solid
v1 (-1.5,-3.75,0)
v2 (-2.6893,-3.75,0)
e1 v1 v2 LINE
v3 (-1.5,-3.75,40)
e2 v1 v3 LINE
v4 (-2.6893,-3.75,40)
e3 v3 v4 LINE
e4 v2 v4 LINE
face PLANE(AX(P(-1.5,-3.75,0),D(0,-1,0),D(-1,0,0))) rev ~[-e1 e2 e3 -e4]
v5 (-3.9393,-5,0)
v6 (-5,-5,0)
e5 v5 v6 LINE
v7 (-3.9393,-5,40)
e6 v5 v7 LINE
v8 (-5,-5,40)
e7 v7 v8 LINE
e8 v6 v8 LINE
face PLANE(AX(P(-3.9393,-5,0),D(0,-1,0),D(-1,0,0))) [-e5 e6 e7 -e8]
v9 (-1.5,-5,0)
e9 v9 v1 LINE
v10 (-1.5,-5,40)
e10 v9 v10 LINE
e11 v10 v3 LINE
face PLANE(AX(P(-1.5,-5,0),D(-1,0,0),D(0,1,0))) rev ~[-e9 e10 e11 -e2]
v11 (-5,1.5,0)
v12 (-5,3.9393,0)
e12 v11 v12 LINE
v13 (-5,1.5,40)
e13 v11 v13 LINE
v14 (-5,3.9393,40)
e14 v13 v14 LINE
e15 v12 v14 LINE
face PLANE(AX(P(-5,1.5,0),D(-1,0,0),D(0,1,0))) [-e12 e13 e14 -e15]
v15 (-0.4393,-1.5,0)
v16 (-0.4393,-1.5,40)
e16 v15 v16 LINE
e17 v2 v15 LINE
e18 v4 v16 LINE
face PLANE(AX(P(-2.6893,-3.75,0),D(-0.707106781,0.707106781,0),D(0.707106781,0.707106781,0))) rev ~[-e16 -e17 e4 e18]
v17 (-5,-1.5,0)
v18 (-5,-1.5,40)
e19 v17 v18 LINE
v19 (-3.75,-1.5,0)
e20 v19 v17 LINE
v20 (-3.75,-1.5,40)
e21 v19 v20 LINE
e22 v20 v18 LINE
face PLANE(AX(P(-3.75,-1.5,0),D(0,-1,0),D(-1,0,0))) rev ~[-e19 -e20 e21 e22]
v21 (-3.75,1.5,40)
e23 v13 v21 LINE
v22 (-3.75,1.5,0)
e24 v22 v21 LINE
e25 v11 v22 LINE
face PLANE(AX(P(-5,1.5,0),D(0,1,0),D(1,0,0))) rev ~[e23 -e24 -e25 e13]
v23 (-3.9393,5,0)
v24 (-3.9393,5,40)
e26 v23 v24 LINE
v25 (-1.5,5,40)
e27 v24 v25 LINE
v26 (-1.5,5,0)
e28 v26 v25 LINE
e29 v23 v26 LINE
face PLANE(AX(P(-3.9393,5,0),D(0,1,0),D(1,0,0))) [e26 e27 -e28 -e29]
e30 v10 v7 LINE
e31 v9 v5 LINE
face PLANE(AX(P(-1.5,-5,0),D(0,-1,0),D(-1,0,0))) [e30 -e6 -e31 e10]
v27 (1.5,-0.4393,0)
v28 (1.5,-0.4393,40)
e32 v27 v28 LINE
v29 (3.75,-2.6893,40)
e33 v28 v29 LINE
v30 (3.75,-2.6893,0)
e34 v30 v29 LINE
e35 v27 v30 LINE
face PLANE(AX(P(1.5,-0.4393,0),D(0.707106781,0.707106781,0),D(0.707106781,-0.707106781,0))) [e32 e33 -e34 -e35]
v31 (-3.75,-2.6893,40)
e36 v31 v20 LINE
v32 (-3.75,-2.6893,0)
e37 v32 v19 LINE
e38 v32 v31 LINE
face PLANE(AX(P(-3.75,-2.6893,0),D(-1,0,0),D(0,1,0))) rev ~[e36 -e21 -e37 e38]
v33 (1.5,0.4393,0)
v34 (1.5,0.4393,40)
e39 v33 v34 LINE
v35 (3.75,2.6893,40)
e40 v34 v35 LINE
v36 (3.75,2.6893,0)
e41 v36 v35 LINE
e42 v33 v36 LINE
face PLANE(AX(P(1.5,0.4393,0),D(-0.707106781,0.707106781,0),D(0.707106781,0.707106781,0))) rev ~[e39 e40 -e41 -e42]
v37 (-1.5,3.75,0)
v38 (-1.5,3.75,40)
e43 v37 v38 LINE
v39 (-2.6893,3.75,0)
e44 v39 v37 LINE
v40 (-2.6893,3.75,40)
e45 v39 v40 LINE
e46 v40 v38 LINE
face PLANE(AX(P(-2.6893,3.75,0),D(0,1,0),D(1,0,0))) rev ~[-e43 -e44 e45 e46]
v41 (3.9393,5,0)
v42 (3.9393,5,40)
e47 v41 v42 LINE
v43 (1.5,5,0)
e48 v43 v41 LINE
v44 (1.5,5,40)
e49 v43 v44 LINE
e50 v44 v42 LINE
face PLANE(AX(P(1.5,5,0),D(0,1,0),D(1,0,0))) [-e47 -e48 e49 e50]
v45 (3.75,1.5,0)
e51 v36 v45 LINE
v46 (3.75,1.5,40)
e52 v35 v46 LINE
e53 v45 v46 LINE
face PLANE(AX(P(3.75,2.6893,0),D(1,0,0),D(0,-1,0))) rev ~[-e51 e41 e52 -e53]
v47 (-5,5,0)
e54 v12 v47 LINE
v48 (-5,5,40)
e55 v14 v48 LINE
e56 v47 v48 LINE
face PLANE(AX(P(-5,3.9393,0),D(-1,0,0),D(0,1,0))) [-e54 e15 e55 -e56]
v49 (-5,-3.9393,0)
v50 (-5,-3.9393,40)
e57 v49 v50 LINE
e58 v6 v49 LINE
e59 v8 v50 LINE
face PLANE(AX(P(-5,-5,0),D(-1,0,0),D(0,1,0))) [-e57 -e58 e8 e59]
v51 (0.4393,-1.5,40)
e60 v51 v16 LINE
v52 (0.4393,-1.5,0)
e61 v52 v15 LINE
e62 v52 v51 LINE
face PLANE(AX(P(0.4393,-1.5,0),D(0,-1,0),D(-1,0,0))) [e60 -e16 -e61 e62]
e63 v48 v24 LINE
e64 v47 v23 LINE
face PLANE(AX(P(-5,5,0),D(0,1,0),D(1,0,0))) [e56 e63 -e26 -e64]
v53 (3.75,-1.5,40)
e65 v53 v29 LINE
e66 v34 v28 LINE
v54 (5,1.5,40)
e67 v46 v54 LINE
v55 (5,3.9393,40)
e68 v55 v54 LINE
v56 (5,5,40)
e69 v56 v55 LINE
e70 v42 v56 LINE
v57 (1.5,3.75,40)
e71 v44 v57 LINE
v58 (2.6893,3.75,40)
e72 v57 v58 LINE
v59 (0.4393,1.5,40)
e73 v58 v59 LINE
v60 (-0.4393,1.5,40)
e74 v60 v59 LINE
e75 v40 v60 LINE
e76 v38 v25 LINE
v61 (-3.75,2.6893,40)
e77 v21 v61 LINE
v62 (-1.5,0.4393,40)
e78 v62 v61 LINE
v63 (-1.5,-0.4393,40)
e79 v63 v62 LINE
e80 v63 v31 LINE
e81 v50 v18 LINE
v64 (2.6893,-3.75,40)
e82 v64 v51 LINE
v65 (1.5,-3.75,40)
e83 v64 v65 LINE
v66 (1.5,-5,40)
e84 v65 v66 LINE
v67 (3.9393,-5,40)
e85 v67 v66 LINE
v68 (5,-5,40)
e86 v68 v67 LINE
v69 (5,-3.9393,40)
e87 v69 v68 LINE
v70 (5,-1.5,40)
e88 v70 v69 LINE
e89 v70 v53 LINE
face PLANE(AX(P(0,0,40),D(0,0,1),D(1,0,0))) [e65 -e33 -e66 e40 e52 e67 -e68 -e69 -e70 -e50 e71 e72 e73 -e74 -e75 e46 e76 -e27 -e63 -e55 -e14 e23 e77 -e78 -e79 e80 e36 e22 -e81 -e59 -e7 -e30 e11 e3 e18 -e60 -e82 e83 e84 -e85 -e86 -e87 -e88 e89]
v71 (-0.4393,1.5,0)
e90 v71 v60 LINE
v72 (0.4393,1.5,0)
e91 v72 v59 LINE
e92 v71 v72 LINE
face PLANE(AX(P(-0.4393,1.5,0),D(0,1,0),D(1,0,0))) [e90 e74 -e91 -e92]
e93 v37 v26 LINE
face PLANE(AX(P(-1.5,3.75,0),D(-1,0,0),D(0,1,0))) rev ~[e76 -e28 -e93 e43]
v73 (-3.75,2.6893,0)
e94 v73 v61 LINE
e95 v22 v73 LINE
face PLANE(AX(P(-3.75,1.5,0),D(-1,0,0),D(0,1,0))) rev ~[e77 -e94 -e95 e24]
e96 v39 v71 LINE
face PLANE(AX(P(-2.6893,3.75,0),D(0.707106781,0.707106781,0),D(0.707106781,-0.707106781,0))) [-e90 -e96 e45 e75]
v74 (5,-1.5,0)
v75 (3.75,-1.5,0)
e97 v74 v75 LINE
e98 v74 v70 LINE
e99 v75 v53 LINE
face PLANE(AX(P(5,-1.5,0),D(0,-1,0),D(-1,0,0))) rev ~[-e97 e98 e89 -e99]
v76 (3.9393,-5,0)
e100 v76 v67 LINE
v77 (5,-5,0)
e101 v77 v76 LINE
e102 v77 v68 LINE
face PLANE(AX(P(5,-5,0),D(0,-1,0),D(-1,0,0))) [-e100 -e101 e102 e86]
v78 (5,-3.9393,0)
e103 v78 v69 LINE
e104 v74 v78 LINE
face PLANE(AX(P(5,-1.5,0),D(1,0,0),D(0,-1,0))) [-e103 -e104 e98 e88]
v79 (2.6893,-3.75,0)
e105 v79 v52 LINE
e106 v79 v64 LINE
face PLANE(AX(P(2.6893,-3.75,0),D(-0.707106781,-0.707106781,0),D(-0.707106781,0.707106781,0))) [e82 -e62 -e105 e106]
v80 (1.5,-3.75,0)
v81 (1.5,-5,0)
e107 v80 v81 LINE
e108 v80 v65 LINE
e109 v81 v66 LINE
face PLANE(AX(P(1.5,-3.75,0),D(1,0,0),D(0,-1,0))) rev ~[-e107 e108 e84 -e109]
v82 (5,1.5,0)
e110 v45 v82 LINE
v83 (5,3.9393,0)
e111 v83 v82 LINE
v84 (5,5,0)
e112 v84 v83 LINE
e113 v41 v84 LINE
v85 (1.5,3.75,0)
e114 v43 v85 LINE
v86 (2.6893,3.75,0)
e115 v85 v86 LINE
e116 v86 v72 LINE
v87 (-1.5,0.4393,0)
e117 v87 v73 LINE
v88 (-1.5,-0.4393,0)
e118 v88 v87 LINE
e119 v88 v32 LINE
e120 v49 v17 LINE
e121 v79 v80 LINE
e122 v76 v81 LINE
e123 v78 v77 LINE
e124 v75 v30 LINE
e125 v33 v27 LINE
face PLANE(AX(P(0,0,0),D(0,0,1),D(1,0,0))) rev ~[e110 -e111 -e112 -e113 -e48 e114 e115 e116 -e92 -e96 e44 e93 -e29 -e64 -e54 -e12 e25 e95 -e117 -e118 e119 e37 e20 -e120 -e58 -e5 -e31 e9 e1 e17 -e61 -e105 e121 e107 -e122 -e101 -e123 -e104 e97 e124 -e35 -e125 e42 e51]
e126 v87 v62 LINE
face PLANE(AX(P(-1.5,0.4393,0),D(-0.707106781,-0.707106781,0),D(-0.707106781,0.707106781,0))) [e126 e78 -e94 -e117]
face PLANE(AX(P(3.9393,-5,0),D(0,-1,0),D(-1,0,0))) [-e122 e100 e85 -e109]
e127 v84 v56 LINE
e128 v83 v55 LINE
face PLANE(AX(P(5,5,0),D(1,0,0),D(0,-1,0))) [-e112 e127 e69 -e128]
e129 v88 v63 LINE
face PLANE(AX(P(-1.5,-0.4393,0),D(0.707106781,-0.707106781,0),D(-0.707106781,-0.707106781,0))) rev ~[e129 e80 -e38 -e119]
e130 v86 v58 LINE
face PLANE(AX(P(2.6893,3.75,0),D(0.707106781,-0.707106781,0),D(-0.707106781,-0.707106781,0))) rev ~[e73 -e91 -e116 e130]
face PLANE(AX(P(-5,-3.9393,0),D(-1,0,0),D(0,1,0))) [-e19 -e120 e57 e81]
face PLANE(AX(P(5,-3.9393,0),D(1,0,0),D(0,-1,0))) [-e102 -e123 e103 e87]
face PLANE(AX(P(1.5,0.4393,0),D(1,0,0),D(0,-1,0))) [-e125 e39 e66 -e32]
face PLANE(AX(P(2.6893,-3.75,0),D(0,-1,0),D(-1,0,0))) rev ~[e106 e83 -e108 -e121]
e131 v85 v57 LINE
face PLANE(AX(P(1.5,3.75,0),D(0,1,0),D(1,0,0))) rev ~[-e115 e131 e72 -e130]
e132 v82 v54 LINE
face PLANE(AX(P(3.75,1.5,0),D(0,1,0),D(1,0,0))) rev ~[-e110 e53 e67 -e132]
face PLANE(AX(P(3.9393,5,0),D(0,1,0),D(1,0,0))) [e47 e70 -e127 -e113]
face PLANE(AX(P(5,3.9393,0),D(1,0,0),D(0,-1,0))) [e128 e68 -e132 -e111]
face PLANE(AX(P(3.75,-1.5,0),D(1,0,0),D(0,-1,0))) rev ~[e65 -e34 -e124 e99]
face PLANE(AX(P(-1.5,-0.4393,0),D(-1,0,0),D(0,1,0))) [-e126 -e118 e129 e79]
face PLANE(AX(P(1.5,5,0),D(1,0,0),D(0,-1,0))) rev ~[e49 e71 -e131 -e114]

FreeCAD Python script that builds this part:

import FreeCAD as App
import Part
import Sketcher
from FreeCAD import Vector
Q = App.Units.Quantity

doc = App.newDocument("Part")
body = doc.addObject("PartDesign::Body", "Body")

# Sketch on XY plane
sketch1 = body.newObject("Sketcher::SketchObject", "Sketch")
sketch1.AttachmentSupport = (doc.getObject("XY_Plane"), [""])
sketch1.MapMode = "FlatFace"
sketch1.addGeometry([
    Part.LineSegment(Vector(-5, -1.5, 0), Vector(-5, -5, 0)),  # 0
    Part.LineSegment(Vector(-5, -5, 0), Vector(-1.5, -5, 0)),  # 1
    Part.LineSegment(Vector(-1.5, -5, 0), Vector(-1.5, -3.75, 0)),  # 2
    Part.LineSegment(Vector(-1.5, -3.75, 0), Vector(-2.6893, -3.75, 0)),  # 3
    Part.LineSegment(Vector(-2.6893, -3.75, 0), Vector(-0.4393, -1.5, 0)),  # 4
    Part.LineSegment(Vector(-0.4393, -1.5, 0), Vector(0.4393, -1.5, 0)),  # 5
    Part.LineSegment(Vector(0.4393, -1.5, 0), Vector(2.6893, -3.75, 0)),  # 6
    Part.LineSegment(Vector(2.6893, -3.75, 0), Vector(1.5, -3.75, 0)),  # 7
    Part.LineSegment(Vector(1.5, -3.75, 0), Vector(1.5, -5, 0)),  # 8
    Part.LineSegment(Vector(1.5, -5, 0), Vector(5, -5, 0)),  # 9
    Part.LineSegment(Vector(5, -5, 0), Vector(5, -1.5, 0)),  # 10
    Part.LineSegment(Vector(5, -1.5, 0), Vector(3.75, -1.5, 0)),  # 11
    Part.LineSegment(Vector(3.75, -1.5, 0), Vector(3.75, -2.6893, 0)),  # 12
    Part.LineSegment(Vector(3.75, -2.6893, 0), Vector(1.5, -0.4393, 0)),  # 13
    Part.LineSegment(Vector(1.5, -0.4393, 0), Vector(1.5, 0.4393, 0)),  # 14
    Part.LineSegment(Vector(1.5, 0.4393, 0), Vector(3.75, 2.6893, 0)),  # 15
    Part.LineSegment(Vector(3.75, 2.6893, 0), Vector(3.75, 1.5, 0)),  # 16
    Part.LineSegment(Vector(3.75, 1.5, 0), Vector(5, 1.5, 0)),  # 17
    Part.LineSegment(Vector(5, 1.5, 0), Vector(5, 5, 0)),  # 18
    Part.LineSegment(Vector(5, 5, 0), Vector(1.5, 5, 0)),  # 19
    Part.LineSegment(Vector(1.5, 5, 0), Vector(1.5, 3.75, 0)),  # 20
    Part.LineSegment(Vector(1.5, 3.75, 0), Vector(2.6893, 3.75, 0)),  # 21
    Part.LineSegment(Vector(2.6893, 3.75, 0), Vector(0.4393, 1.5, 0)),  # 22
    Part.LineSegment(Vector(0.4393, 1.5, 0), Vector(-0.4393, 1.5, 0)),  # 23
    Part.LineSegment(Vector(-0.4393, 1.5, 0), Vector(-2.6893, 3.75, 0)),  # 24
    Part.LineSegment(Vector(-2.6893, 3.75, 0), Vector(-1.5, 3.75, 0)),  # 25
    Part.LineSegment(Vector(-1.5, 3.75, 0), Vector(-1.5, 5, 0)),  # 26
    Part.LineSegment(Vector(-1.5, 5, 0), Vector(-5, 5, 0)),  # 27
    Part.LineSegment(Vector(-5, 5, 0), Vector(-5, 1.5, 0)),  # 28
    Part.LineSegment(Vector(-5, 1.5, 0), Vector(-3.75, 1.5, 0)),  # 29
    Part.LineSegment(Vector(-3.75, 1.5, 0), Vector(-3.75, 2.6893, 0)),  # 30
    Part.LineSegment(Vector(-3.75, 2.6893, 0), Vector(-1.5, 0.4393, 0)),  # 31
    Part.LineSegment(Vector(-1.5, 0.4393, 0), Vector(-1.5, -0.4393, 0)),  # 32
    Part.LineSegment(Vector(-1.5, -0.4393, 0), Vector(-3.75, -2.6893, 0)),  # 33
    Part.LineSegment(Vector(-3.75, -2.6893, 0), Vector(-3.75, -1.5, 0)),  # 34
    Part.LineSegment(Vector(-3.75, -1.5, 0), Vector(-5, -1.5, 0)),  # 35
], False)
sketch1.addConstraint([
    Sketcher.Constraint("Coincident", 0, 2, 1, 1),
    Sketcher.Constraint("Coincident", 1, 2, 2, 1),
    Sketcher.Constraint("Coincident", 2, 2, 3, 1),
    Sketcher.Constraint("Coincident", 3, 2, 4, 1),
    Sketcher.Constraint("Coincident", 4, 2, 5, 1),
    Sketcher.Constraint("Coincident", 5, 2, 6, 1),
    Sketcher.Constraint("Coincident", 6, 2, 7, 1),
    Sketcher.Constraint("Coincident", 7, 2, 8, 1),
    Sketcher.Constraint("Coincident", 8, 2, 9, 1),
    Sketcher.Constraint("Coincident", 9, 2, 10, 1),
    Sketcher.Constraint("Coincident", 10, 2, 11, 1),
    Sketcher.Constraint("Coincident", 11, 2, 12, 1),
    Sketcher.Constraint("Coincident", 12, 2, 13, 1),
    Sketcher.Constraint("Coincident", 13, 2, 14, 1),
    Sketcher.Constraint("Coincident", 14, 2, 15, 1),
    Sketcher.Constraint("Coincident", 15, 2, 16, 1),
    Sketcher.Constraint("Coincident", 16, 2, 17, 1),
    Sketcher.Constraint("Coincident", 17, 2, 18, 1),
    Sketcher.Constraint("Coincident", 18, 2, 19, 1),
    Sketcher.Constraint("Coincident", 19, 2, 20, 1),
    Sketcher.Constraint("Coincident", 20, 2, 21, 1),
    Sketcher.Constraint("Coincident", 21, 2, 22, 1),
    Sketcher.Constraint("Coincident", 22, 2, 23, 1),
    Sketcher.Constraint("Coincident", 23, 2, 24, 1),
    Sketcher.Constraint("Coincident", 24, 2, 25, 1),
    Sketcher.Constraint("Coincident", 25, 2, 26, 1),
    Sketcher.Constraint("Coincident", 26, 2, 27, 1),
    Sketcher.Constraint("Coincident", 27, 2, 28, 1),
    Sketcher.Constraint("Coincident", 28, 2, 29, 1),
    Sketcher.Constraint("Coincident", 29, 2, 30, 1),
    Sketcher.Constraint("Coincident", 30, 2, 31, 1),
    Sketcher.Constraint("Coincident", 31, 2, 32, 1),
    Sketcher.Constraint("Coincident", 32, 2, 33, 1),
    Sketcher.Constraint("Coincident", 33, 2, 34, 1),
    Sketcher.Constraint("Coincident", 34, 2, 35, 1),
    Sketcher.Constraint("Coincident", 35, 2, 0, 1),
    Sketcher.Constraint("Vertical", 0),
    Sketcher.Constraint("Horizontal", 1),
    Sketcher.Constraint("Vertical", 2),
    Sketcher.Constraint("Horizontal", 3),
    Sketcher.Constraint("Horizontal", 5),
    Sketcher.Constraint("Horizontal", 7),
    Sketcher.Constraint("Vertical", 8),
    Sketcher.Constraint("Horizontal", 9),
    Sketcher.Constraint("Vertical", 10),
    Sketcher.Constraint("Horizontal", 11),
    Sketcher.Constraint("Vertical", 12),
    Sketcher.Constraint("Vertical", 14),
    Sketcher.Constraint("Vertical", 16),
    Sketcher.Constraint("Horizontal", 17),
    Sketcher.Constraint("Vertical", 18),
    Sketcher.Constraint("Horizontal", 19),
    Sketcher.Constraint("Vertical", 20),
    Sketcher.Constraint("Horizontal", 21),
    Sketcher.Constraint("Horizontal", 23),
    Sketcher.Constraint("Horizontal", 25),
    Sketcher.Constraint("Vertical", 26),
    Sketcher.Constraint("Horizontal", 27),
    Sketcher.Constraint("Vertical", 28),
    Sketcher.Constraint("Horizontal", 29),
    Sketcher.Constraint("Vertical", 30),
    Sketcher.Constraint("Vertical", 32),
    Sketcher.Constraint("Vertical", 34),
    Sketcher.Constraint("Horizontal", 35),
    Sketcher.Constraint("Symmetric", 0, 2, 18, 2, -1, 1),
    Sketcher.Constraint("Symmetric", 2, 2, 20, 2, -1, 1),
    Sketcher.Constraint("Symmetric", 4, 2, 22, 2, -1, 1),
    Sketcher.Constraint("Symmetric", 6, 2, 24, 2, -1, 1),
    Sketcher.Constraint("Symmetric", 8, 2, 26, 2, -1, 1),
    Sketcher.Constraint("Symmetric", 10, 2, 28, 2, -1, 1),
    Sketcher.Constraint("Symmetric", 12, 2, 30, 2, -1, 1),
    Sketcher.Constraint("Symmetric", 13, 2, 31, 2, -1, 1),
    Sketcher.Constraint("Symmetric", 15, 2, 33, 2, -1, 1),
    Sketcher.Constraint("Symmetric", 3, 2, 6, 2, -2),
    Sketcher.Constraint("Symmetric", 1, 2, 8, 2, -2),
    Sketcher.Constraint("Symmetric", 17, 2, 28, 2, -2),
    Sketcher.Constraint("Symmetric", 15, 2, 30, 2, -2),
    Sketcher.Constraint("Perpendicular", 4, 6),
    Sketcher.Constraint("Parallel", 6, 13),
    Sketcher.Constraint("Perpendicular", 13, 15),
    Sketcher.Constraint("Parallel", 15, 22),
    Sketcher.Constraint("Perpendicular", 22, 24),
    Sketcher.Constraint("Perpendicular", 31, 33),
    Sketcher.Constraint("Horizontal", 5, 2, 10, 2),
    Sketcher.Constraint("Horizontal", 14, 2, 31, 2),
    Sketcher.Constraint("Horizontal", 11, 2, 34, 2),
    Sketcher.Constraint("Vertical", 8, 2, 13, 2),
    Sketcher.Constraint("Equal", 27, 0),
    Sketcher.Constraint("Equal", 35, 2),
    Sketcher.Constraint("Equal", 25, 12),
    Sketcher.Constraint("Equal", 23, 14),
    Sketcher.Constraint("DistanceX", 2, 2, 7, 2, Q("3 mm")),
    Sketcher.Constraint("DistanceX", 1, 1, 1, 2, Q("3.5 mm")),
    Sketcher.Constraint("DistanceX", 11, 2, 11, 1, Q("1.25 mm")),
    Sketcher.Constraint("DistanceX", 3, 2, 3, 1, Q("1.1893 mm")),
])
pad1 = body.newObject("PartDesign::Pad", "Pad")
pad1.Profile = sketch1
pad1.Length = 40

doc.recompute()
